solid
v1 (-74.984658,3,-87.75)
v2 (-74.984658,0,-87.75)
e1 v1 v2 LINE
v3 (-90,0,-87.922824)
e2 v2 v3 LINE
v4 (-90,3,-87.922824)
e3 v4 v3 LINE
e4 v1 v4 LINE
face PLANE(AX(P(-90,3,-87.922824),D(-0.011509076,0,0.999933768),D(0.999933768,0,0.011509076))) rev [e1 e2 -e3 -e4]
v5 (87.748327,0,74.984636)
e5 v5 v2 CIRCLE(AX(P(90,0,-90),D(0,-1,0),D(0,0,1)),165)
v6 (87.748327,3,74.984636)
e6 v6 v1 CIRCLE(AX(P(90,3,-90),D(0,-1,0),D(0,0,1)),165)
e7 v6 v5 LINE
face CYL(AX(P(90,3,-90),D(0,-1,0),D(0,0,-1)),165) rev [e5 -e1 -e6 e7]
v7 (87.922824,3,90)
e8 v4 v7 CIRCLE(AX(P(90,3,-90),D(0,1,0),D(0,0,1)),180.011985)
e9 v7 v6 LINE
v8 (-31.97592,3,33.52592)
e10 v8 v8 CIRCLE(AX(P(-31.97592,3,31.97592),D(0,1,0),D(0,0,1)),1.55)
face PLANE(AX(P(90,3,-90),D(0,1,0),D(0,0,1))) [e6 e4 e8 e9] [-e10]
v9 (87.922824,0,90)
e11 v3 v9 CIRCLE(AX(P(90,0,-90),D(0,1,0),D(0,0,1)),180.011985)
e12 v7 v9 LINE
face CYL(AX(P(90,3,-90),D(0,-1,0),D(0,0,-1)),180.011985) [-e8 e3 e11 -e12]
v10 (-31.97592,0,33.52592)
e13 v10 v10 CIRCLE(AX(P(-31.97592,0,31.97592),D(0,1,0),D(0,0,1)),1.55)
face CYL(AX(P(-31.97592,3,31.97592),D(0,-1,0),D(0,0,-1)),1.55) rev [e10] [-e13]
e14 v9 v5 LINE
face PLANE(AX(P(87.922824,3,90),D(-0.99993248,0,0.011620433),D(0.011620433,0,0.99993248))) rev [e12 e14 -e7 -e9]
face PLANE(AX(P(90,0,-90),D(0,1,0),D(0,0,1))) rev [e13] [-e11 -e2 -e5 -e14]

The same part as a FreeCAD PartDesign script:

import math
import FreeCAD as App
import Part
import Sketcher
from FreeCAD import Vector
Q = App.Units.Quantity

doc = App.newDocument("Part")
body = doc.addObject("PartDesign::Body", "Body")

sketch1 = body.newObject("Sketcher::SketchObject", "Sketch")
sketch1.AttachmentSupport = (doc.getObject("XZ_Plane"), [""])
sketch1.MapMode = "FlatFace"
sketch1.addGeometry(Part.LineSegment(Vector(-74.984658, -87.75, 0), Vector(-90, -87.922824, 0)), False)
sketch1.addGeometry(Part.ArcOfCircle(Part.Circle(Vector(90, -90, 0), Vector(0, 0, 1), 180.011985), math.radians(90.661156), math.radians(179.338844)), False)
sketch1.addGeometry(Part.LineSegment(Vector(87.922824, 90, 0), Vector(87.748327, 74.984636, 0)), False)
sketch1.addGeometry(Part.ArcOfCircle(Part.Circle(Vector(90, -90, 0), Vector(0, 0, 1), 165), math.radians(90.781911), math.radians(179.21867)), False)
sketch1.addGeometry(Part.Circle(Vector(-31.97592, 31.97592, 0), Vector(0, 0, 1), 1.55), False)
sketch1.addConstraint(Sketcher.Constraint("Coincident", 0, 2, 1, 2))
sketch1.addConstraint(Sketcher.Constraint("Coincident", 1, 1, 2, 1))
sketch1.addConstraint(Sketcher.Constraint("Coincident", 2, 2, 3, 1))
sketch1.addConstraint(Sketcher.Constraint("Coincident", 3, 2, 0, 1))
sketch1.addConstraint(Sketcher.Constraint("Coincident", 3, 3, 1, 3))
sketch1.addConstraint(Sketcher.Constraint("Radius", 3, Q("165 mm")))
sketch1.addConstraint(Sketcher.Constraint("Diameter", 4, Q("3.1 mm")))
sketch1.addConstraint(Sketcher.Constraint("DistanceX", -1, 1, 1, 3, Q("90 mm")))
sketch1.addConstraint(Sketcher.Constraint("DistanceY", 1, 3, -1, 1, Q("90 mm")))
sketch1.addConstraint(Sketcher.Constraint("DistanceX", 0, 2, -1, 1, Q("90 mm")))
sketch1.addConstraint(Sketcher.Constraint("DistanceY", -1, 1, 1, 1, Q("90 mm")))
sketch1.addConstraint(Sketcher.Constraint("DistanceY", 3, 2, -1, 1, Q("87.75 mm")))
sketch1.addConstraint(Sketcher.Constraint("Radius", 1, Q("180.011985 mm")))
sketch1.addConstraint(Sketcher.Constraint("Distance", 2, Q("15.016378 mm")))
sketch1.addConstraint(Sketcher.Constraint("DistanceX", 4, 3, -1, 1, Q("31.97592 mm")))
sketch1.addConstraint(Sketcher.Constraint("DistanceY", -1, 1, 4, 3, Q("31.97592 mm")))
pad1 = body.newObject("PartDesign::Pad", "Pad")
pad1.Profile = sketch1
pad1.Length = 3
pad1.Reversed = True

doc.recompute()
